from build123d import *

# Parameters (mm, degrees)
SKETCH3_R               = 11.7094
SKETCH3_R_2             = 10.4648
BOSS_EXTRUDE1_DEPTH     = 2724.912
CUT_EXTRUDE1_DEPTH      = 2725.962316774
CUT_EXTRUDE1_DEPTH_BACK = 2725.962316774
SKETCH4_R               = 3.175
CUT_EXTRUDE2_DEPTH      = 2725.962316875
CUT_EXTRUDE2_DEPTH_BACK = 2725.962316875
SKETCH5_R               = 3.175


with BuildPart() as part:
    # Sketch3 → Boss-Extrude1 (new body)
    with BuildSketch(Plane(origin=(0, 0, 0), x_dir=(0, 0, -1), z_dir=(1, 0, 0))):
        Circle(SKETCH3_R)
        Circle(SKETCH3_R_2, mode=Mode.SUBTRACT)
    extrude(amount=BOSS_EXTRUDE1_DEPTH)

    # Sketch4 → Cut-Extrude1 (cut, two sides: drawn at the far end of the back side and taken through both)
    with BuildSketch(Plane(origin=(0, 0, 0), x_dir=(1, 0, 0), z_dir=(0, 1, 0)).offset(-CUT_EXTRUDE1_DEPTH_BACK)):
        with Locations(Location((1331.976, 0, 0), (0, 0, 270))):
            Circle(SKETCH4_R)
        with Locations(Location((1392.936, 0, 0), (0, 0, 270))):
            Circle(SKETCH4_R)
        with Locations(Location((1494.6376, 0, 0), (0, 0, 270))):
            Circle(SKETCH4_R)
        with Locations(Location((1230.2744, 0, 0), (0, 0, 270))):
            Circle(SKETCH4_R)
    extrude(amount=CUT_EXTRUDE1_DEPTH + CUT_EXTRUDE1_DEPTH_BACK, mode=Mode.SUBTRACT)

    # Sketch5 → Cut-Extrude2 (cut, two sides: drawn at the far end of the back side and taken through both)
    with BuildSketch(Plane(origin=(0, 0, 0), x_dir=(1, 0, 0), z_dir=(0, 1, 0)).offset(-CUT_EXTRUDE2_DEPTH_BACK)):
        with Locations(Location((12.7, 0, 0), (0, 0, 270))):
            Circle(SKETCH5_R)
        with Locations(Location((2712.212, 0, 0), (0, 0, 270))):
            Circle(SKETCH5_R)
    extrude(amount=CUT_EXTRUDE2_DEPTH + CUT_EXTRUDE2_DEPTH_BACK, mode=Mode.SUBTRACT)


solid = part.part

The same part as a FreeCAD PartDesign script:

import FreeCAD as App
import Part
import Sketcher

V = App.Vector
Q = App.Units.Quantity

doc = App.newDocument("Part")
body = doc.addObject("PartDesign::Body", "Body")

# Sketch on YZ plane
sketch1 = body.newObject("Sketcher::SketchObject", "Sketch")
sketch1.AttachmentSupport = (doc.getObject("YZ_Plane"), [""])
sketch1.MapMode = "FlatFace"
sketch1.addGeometry(Part.Circle(V(0, 0, 0), V(0, 0, 1), 12), False)
sketch1.addGeometry(Part.Circle(V(0, 0, 0), V(0, 0, 1), 10), False)
sketch1.addConstraint(Sketcher.Constraint("Coincident", 0, 3, -1, 1))
sketch1.addConstraint(Sketcher.Constraint("Coincident", 1, 3, -1, 1))
sketch1.addConstraint(Sketcher.Constraint("Diameter", 0, Q("0.922 in")))
sketch1.addConstraint(Sketcher.Constraint("Diameter", 1, Q("0.824 in")))
pad1 = body.newObject("PartDesign::Pad", "Pad")
pad1.Profile = sketch1
pad1.Length = Q("107.28 in")

# Sketch on XZ plane
sketch2 = body.newObject("Sketcher::SketchObject", "Sketch001")
sketch2.AttachmentSupport = (doc.getObject("XZ_Plane"), [""])
sketch2.MapMode = "FlatFace"
sketch2.addGeometry(Part.Circle(V(1332, 0, 0), V(0, 0, 1), 3.2), False)
sketch2.addGeometry(Part.Circle(V(1392.9, 0, 0), V(0, 0, 1), 3.2), False)
sketch2.addGeometry(Part.Circle(V(1494.6, 0, 0), V(0, 0, 1), 3.2), False)
sketch2.addGeometry(Part.Circle(V(1230.3, 0, 0), V(0, 0, 1), 3.2), False)
sketch2.addConstraint(Sketcher.Constraint("Equal", 0, 1))
sketch2.addConstraint(Sketcher.Constraint("Equal", 1, 2))
sketch2.addConstraint(Sketcher.Constraint("Equal", 2, 3))
sketch2.addConstraint(Sketcher.Constraint("PointOnObject", 0, 3, -1))
sketch2.addConstraint(Sketcher.Constraint("PointOnObject", 1, 3, -1))
sketch2.addConstraint(Sketcher.Constraint("PointOnObject", 2, 3, -1))
sketch2.addConstraint(Sketcher.Constraint("PointOnObject", 3, 3, -1))
sketch2.addConstraint(Sketcher.Constraint("Diameter", 0, Q("0.25 in")))
sketch2.addConstraint(Sketcher.Constraint("DistanceX", 0, 3, 1, 3, Q("2.4 in")))
sketch2.addConstraint(Sketcher.Constraint("DistanceX", -1, 1, 0, 3, Q("52.44 in")))
sketch2.addConstraint(Sketcher.Constraint("DistanceX", -1, 1, 2, 3, Q("58.844 in")))
sketch2.addConstraint(Sketcher.Constraint("DistanceX", -1, 1, 3, 3, Q("48.436 in")))
pocket1 = body.newObject("PartDesign::Pocket", "Pocket")
pocket1.Profile = sketch2
pocket1.Type = "ThroughAll"
pocket1.Midplane = True

# Sketch on XZ plane
sketch3 = body.newObject("Sketcher::SketchObject", "Sketch002")
sketch3.AttachmentSupport = (doc.getObject("XZ_Plane"), [""])
sketch3.MapMode = "FlatFace"
sketch3.addGeometry(Part.Circle(V(12.7, 0, 0), V(0, 0, 1), 3.2), False)
sketch3.addGeometry(Part.Circle(V(2712.2, 0, 0), V(0, 0, 1), 3.2), False)
sketch3.addConstraint(Sketcher.Constraint("Equal", 0, 1))
sketch3.addConstraint(Sketcher.Constraint("PointOnObject", 0, 3, -1))
sketch3.addConstraint(Sketcher.Constraint("PointOnObject", 1, 3, -1))
sketch3.addConstraint(Sketcher.Constraint("Diameter", 0, Q("0.25 in")))
sketch3.addConstraint(Sketcher.Constraint("DistanceX", -1, 1, 0, 3, Q("0.5 in")))
sketch3.addConstraint(Sketcher.Constraint("DistanceX", -1, 1, 1, 3, Q("106.78 in")))
pocket2 = body.newObject("PartDesign::Pocket", "Pocket001")
pocket2.Profile = sketch3
pocket2.Type = "ThroughAll"
pocket2.Midplane = True

doc.recompute()
